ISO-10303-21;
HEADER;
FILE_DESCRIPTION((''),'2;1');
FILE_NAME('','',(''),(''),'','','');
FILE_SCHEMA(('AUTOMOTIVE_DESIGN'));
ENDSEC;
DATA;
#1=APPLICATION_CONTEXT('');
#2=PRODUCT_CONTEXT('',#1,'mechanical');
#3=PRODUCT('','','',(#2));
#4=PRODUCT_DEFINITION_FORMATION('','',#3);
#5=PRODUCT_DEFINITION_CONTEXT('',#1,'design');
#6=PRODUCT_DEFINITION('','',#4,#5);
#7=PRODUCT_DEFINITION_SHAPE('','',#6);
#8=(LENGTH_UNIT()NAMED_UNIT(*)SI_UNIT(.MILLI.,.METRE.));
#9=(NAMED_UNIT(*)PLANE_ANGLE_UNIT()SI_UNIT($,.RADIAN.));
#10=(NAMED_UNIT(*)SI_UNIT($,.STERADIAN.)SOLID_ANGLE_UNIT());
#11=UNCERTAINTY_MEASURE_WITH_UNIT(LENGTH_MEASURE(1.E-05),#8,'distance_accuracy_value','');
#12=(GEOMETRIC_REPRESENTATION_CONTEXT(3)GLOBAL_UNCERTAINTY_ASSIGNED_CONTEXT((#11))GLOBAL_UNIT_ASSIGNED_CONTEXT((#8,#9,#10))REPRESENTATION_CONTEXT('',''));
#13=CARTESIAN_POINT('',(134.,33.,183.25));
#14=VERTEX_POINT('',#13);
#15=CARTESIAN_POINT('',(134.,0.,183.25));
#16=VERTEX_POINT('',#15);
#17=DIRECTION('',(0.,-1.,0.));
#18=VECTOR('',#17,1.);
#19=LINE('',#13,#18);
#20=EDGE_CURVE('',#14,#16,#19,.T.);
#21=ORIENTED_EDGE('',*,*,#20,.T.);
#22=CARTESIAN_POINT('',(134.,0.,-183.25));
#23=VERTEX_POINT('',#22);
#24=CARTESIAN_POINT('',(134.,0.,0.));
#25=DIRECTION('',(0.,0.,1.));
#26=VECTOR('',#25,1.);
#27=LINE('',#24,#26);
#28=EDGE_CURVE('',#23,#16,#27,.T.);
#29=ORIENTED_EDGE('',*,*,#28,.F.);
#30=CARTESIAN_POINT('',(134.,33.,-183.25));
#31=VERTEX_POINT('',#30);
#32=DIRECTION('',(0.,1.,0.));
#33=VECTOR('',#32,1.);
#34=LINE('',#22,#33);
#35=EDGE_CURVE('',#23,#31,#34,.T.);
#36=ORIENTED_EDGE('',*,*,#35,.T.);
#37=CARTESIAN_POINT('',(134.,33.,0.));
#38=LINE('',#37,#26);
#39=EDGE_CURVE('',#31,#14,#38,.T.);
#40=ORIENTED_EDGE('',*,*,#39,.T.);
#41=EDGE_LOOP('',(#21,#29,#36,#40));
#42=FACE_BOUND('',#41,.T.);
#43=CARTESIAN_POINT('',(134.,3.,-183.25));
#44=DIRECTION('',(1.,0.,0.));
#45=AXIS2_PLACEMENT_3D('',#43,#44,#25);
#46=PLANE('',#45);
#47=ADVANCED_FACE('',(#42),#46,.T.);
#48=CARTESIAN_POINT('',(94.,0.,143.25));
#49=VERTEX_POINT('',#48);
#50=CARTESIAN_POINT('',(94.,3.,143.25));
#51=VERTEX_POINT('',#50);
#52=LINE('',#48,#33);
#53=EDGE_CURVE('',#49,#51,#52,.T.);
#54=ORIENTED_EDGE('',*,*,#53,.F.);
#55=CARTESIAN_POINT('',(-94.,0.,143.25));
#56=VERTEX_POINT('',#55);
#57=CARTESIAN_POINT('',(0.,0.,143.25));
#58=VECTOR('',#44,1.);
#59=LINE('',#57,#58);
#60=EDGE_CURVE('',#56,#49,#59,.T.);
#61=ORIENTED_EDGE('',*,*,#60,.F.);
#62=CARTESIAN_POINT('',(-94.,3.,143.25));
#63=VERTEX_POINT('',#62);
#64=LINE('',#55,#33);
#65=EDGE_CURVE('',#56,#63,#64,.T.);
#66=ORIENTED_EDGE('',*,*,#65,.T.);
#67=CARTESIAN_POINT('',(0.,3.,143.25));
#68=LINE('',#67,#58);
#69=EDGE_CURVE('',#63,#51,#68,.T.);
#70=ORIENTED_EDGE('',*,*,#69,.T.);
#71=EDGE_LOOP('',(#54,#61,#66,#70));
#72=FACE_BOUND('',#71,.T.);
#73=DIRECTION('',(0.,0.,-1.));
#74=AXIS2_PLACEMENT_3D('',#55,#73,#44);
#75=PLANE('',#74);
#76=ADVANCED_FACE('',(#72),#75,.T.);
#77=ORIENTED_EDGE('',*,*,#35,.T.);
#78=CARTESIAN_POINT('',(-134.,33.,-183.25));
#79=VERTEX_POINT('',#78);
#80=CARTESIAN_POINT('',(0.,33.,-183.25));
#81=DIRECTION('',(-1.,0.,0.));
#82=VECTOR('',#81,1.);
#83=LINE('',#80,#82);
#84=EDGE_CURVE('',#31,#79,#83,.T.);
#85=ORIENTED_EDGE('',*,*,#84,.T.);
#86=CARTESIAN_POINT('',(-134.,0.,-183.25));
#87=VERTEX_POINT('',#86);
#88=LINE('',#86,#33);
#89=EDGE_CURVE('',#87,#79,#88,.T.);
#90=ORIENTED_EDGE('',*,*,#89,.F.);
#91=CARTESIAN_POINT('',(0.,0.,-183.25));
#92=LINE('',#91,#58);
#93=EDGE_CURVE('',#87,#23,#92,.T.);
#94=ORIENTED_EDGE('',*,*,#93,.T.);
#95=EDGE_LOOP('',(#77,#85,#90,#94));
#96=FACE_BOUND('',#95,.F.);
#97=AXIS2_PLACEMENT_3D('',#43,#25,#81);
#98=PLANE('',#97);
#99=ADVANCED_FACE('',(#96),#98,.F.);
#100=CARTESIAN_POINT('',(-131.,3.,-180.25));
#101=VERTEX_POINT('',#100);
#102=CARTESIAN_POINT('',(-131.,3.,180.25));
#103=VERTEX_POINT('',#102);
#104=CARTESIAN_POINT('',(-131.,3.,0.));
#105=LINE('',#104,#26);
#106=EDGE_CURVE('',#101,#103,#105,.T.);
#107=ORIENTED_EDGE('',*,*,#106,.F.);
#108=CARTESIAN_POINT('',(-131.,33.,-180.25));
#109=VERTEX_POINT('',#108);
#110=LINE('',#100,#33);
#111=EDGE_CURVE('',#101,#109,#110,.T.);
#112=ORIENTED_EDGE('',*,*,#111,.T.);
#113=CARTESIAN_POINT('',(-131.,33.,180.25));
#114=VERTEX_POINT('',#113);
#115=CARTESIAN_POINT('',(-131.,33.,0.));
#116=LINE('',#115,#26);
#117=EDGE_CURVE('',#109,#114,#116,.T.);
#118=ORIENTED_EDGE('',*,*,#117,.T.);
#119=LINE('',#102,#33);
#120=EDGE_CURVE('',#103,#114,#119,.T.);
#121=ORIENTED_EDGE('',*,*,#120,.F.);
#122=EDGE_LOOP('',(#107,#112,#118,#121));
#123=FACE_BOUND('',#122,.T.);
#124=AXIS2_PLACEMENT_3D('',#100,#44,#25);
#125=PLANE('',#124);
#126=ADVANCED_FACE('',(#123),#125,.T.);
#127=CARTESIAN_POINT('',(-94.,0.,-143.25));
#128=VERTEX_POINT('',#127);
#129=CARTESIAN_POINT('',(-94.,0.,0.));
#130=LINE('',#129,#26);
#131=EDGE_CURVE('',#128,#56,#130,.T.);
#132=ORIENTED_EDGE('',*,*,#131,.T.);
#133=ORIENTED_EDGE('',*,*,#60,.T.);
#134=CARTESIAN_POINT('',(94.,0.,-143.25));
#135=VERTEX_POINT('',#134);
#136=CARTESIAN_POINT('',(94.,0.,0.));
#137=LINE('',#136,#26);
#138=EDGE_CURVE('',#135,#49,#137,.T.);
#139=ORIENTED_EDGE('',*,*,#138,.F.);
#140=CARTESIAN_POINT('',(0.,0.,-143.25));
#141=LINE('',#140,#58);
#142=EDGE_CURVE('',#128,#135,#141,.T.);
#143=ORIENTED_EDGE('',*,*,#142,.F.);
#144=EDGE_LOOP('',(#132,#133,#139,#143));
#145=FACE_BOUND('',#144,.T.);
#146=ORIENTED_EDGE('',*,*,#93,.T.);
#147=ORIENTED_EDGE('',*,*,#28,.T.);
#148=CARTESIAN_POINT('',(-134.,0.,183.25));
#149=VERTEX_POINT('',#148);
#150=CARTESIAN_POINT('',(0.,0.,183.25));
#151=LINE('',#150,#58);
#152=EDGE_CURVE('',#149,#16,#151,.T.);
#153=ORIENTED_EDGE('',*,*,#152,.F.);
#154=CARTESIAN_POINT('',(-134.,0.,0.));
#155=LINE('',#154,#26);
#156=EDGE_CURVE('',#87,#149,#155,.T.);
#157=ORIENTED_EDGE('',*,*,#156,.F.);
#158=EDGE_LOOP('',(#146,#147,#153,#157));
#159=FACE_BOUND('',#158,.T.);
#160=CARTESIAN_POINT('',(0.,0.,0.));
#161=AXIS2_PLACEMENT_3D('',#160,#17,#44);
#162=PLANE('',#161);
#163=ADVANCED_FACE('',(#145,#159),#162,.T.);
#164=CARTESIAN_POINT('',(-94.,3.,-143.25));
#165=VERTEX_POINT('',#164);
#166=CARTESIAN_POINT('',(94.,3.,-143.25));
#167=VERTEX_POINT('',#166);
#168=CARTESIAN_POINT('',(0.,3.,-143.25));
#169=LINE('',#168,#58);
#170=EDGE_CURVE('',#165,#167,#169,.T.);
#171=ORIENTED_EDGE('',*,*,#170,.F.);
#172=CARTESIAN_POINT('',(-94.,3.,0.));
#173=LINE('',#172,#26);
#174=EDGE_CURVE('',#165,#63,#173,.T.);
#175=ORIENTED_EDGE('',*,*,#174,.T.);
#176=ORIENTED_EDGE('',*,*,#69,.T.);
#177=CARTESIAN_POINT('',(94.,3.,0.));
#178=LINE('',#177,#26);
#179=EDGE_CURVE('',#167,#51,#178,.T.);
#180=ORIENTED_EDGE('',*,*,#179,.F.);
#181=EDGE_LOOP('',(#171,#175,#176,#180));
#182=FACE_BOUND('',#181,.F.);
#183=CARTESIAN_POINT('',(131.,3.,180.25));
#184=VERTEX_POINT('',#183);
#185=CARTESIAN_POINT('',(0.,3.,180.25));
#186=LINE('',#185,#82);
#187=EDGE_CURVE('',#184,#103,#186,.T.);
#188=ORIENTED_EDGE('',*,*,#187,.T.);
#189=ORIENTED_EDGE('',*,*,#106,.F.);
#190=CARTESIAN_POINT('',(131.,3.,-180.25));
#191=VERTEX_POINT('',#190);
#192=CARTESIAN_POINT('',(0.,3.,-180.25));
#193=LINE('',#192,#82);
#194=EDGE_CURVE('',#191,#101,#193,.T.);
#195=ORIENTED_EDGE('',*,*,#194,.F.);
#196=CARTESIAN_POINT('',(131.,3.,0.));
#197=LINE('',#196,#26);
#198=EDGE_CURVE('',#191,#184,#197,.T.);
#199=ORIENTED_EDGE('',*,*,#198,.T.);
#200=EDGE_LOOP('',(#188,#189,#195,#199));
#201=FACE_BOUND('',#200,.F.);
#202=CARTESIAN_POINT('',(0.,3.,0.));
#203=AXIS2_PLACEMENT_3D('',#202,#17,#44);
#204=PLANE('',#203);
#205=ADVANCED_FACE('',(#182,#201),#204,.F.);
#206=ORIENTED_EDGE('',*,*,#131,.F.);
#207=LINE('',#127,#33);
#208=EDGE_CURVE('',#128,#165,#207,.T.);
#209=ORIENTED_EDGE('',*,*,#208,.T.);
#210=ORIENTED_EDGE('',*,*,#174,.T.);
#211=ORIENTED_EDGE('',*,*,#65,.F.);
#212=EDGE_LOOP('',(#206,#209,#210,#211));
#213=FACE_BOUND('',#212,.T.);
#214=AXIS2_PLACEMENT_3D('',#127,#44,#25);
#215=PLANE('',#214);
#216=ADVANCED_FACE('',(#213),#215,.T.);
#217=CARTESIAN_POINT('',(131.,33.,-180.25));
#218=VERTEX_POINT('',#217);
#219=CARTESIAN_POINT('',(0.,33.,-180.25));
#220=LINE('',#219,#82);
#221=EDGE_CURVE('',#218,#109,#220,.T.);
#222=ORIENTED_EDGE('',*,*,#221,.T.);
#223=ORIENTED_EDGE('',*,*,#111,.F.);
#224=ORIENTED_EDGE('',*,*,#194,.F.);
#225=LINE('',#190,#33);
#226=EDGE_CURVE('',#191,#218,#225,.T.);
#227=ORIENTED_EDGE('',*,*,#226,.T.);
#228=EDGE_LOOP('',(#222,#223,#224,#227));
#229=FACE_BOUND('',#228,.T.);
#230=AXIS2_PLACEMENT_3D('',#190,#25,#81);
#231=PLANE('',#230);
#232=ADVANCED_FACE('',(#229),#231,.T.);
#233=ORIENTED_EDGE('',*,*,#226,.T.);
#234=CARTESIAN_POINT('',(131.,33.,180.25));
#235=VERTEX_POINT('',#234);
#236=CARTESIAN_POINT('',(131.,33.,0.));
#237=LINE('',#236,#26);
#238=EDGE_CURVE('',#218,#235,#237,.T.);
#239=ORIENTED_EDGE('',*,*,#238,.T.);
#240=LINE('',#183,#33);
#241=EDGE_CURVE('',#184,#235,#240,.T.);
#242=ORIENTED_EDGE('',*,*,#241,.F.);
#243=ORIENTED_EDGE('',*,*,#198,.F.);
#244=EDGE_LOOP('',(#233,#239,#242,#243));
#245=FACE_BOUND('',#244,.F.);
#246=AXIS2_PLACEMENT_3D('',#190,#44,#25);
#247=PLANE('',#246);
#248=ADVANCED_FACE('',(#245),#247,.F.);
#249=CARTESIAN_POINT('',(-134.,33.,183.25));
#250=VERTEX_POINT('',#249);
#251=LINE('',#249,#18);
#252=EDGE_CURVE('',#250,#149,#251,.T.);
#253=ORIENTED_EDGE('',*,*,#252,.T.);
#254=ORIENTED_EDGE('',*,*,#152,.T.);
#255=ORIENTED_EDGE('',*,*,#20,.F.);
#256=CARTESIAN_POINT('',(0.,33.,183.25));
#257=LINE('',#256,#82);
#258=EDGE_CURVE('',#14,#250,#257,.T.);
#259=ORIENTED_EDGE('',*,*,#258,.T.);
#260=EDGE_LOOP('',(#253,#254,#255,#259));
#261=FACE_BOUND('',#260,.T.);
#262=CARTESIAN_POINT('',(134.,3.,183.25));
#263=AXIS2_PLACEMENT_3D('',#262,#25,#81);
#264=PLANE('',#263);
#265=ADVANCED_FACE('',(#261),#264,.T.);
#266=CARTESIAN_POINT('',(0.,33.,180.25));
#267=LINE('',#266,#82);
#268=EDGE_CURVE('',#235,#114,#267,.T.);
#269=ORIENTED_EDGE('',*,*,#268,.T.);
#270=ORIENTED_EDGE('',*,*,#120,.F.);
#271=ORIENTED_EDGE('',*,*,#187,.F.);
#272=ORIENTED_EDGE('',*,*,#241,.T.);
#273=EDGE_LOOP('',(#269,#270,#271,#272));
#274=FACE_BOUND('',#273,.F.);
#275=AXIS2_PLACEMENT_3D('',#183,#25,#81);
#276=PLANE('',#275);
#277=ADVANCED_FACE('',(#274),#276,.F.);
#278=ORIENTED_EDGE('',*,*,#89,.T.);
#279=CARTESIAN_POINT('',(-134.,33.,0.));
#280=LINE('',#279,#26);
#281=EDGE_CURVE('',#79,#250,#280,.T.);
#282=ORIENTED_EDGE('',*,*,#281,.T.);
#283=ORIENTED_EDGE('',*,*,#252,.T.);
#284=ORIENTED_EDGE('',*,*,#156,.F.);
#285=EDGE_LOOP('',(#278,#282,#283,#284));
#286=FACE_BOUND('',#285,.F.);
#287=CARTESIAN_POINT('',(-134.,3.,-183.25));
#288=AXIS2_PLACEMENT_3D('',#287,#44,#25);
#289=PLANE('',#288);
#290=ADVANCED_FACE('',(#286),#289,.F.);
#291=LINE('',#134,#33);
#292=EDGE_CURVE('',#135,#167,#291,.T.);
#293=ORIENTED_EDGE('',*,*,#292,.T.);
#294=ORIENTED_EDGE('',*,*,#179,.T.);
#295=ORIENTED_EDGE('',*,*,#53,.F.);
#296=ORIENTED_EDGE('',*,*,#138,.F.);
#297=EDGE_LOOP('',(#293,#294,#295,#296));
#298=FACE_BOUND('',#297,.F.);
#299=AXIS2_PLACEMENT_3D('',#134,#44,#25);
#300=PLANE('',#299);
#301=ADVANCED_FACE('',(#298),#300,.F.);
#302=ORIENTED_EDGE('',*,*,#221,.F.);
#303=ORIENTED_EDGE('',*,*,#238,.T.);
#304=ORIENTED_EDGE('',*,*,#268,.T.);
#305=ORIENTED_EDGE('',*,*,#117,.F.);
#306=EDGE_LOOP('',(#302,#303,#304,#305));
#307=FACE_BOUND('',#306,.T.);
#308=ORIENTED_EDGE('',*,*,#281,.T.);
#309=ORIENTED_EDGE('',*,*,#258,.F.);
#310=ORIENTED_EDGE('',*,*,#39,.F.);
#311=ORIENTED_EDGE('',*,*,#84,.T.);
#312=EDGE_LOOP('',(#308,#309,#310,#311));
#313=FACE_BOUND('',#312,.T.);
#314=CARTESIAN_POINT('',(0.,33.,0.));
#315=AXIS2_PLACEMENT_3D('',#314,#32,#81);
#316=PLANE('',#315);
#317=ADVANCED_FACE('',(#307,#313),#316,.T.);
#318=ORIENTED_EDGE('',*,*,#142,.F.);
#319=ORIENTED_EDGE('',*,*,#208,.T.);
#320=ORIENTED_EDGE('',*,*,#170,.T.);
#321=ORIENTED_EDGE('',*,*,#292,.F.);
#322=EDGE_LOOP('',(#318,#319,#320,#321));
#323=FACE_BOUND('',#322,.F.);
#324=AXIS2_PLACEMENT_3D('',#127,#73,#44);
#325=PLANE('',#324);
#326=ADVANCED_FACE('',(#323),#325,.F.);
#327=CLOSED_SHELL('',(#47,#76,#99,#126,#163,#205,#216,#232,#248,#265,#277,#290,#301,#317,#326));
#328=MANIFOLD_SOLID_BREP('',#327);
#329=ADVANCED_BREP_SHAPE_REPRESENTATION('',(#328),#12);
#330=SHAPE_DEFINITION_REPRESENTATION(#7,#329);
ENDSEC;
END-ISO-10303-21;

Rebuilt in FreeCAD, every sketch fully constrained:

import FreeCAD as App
import Part
import Sketcher
from FreeCAD import Vector
Q = App.Units.Quantity


def add_polygon(sketch, points):
    """Adds a closed chain of lines whose ends are joined by coincident constraints."""
    first, n = sketch.GeometryCount, len(points)
    for a, b in zip(points, points[1:] + points[:1]):
        sketch.addGeometry(Part.LineSegment(App.Vector(*a, 0), App.Vector(*b, 0)), False)
    for i in range(n):
        sketch.addConstraint(Sketcher.Constraint("Coincident", first + i, 2, first + (i + 1) % n, 1))

doc = App.newDocument("Part")
body = doc.addObject("PartDesign::Body", "Body")

# Sketch on XZ plane
sketch1 = body.newObject("Sketcher::SketchObject", "Sketch")
sketch1.AttachmentSupport = (doc.getObject("XZ_Plane"), [""])
sketch1.MapMode = "FlatFace"
add_polygon(sketch1, [(-134, 183), (-134, -183), (134, -183), (134, 183)])  # lines 0-3
add_polygon(sketch1, [(94, -143), (-94, -143), (-94, 143), (94, 143)])  # lines 4-7
sketch1.addConstraint(Sketcher.Constraint("Vertical", 0))
sketch1.addConstraint(Sketcher.Constraint("Horizontal", 1))
sketch1.addConstraint(Sketcher.Constraint("Vertical", 2))
sketch1.addConstraint(Sketcher.Constraint("Horizontal", 3))
sketch1.addConstraint(Sketcher.Constraint("Horizontal", 4))
sketch1.addConstraint(Sketcher.Constraint("Vertical", 5))
sketch1.addConstraint(Sketcher.Constraint("Horizontal", 6))
sketch1.addConstraint(Sketcher.Constraint("Vertical", 7))
sketch1.addConstraint(Sketcher.Constraint("Symmetric", 0, 2, 2, 2, -1, 1))
sketch1.addConstraint(Sketcher.Constraint("Symmetric", 4, 2, 6, 2, -1, 1))
sketch1.addConstraint(Sketcher.Constraint("DistanceX", 1, 1, 1, 2, Q("268 mm")))
sketch1.addConstraint(Sketcher.Constraint("DistanceX", 4, 2, 4, 1, Q("188 mm")))
sketch1.addConstraint(Sketcher.Constraint("DistanceY", 0, 2, 0, 1, Q("366.5 mm")))
sketch1.addConstraint(Sketcher.Constraint("DistanceY", 5, 1, 5, 2, Q("286.5 mm")))
pad1 = body.newObject("PartDesign::Pad", "Pad")
pad1.Profile = sketch1
pad1.Length = 3
pad1.Reversed = True

# Sketch on XZ plane
sketch2 = body.newObject("Sketcher::SketchObject", "Sketch001")
sketch2.AttachmentSupport = (doc.getObject("XZ_Plane"), [""])
sketch2.MapMode = "FlatFace"
sketch2.AttachmentOffset = App.Placement(Vector(0, 0, -3), App.Rotation())
add_polygon(sketch2, [(134, 183), (134, -183), (-134, -183), (-134, 183)])  # lines 0-3
add_polygon(sketch2, [(-131, -180), (131, -180), (131, 180), (-131, 180)])  # lines 4-7
sketch2.addConstraint(Sketcher.Constraint("Vertical", 0))
sketch2.addConstraint(Sketcher.Constraint("Horizontal", 1))
sketch2.addConstraint(Sketcher.Constraint("Vertical", 2))
sketch2.addConstraint(Sketcher.Constraint("Horizontal", 3))
sketch2.addConstraint(Sketcher.Constraint("Horizontal", 4))
sketch2.addConstraint(Sketcher.Constraint("Vertical", 5))
sketch2.addConstraint(Sketcher.Constraint("Horizontal", 6))
sketch2.addConstraint(Sketcher.Constraint("Vertical", 7))
sketch2.addConstraint(Sketcher.Constraint("Symmetric", 0, 2, 2, 2, -1, 1))
sketch2.addConstraint(Sketcher.Constraint("Symmetric", 4, 2, 6, 2, -1, 1))
sketch2.addConstraint(Sketcher.Constraint("DistanceX", 1, 2, 1, 1, Q("268 mm")))
sketch2.addConstraint(Sketcher.Constraint("DistanceX", 4, 1, 4, 2, Q("262 mm")))
sketch2.addConstraint(Sketcher.Constraint("DistanceY", 0, 2, 0, 1, Q("366.5 mm")))
sketch2.addConstraint(Sketcher.Constraint("DistanceY", 5, 1, 5, 2, Q("360.5 mm")))
pad2 = body.newObject("PartDesign::Pad", "Pad001")
pad2.Profile = sketch2
pad2.Length = 30
pad2.Reversed = True

doc.recompute()
